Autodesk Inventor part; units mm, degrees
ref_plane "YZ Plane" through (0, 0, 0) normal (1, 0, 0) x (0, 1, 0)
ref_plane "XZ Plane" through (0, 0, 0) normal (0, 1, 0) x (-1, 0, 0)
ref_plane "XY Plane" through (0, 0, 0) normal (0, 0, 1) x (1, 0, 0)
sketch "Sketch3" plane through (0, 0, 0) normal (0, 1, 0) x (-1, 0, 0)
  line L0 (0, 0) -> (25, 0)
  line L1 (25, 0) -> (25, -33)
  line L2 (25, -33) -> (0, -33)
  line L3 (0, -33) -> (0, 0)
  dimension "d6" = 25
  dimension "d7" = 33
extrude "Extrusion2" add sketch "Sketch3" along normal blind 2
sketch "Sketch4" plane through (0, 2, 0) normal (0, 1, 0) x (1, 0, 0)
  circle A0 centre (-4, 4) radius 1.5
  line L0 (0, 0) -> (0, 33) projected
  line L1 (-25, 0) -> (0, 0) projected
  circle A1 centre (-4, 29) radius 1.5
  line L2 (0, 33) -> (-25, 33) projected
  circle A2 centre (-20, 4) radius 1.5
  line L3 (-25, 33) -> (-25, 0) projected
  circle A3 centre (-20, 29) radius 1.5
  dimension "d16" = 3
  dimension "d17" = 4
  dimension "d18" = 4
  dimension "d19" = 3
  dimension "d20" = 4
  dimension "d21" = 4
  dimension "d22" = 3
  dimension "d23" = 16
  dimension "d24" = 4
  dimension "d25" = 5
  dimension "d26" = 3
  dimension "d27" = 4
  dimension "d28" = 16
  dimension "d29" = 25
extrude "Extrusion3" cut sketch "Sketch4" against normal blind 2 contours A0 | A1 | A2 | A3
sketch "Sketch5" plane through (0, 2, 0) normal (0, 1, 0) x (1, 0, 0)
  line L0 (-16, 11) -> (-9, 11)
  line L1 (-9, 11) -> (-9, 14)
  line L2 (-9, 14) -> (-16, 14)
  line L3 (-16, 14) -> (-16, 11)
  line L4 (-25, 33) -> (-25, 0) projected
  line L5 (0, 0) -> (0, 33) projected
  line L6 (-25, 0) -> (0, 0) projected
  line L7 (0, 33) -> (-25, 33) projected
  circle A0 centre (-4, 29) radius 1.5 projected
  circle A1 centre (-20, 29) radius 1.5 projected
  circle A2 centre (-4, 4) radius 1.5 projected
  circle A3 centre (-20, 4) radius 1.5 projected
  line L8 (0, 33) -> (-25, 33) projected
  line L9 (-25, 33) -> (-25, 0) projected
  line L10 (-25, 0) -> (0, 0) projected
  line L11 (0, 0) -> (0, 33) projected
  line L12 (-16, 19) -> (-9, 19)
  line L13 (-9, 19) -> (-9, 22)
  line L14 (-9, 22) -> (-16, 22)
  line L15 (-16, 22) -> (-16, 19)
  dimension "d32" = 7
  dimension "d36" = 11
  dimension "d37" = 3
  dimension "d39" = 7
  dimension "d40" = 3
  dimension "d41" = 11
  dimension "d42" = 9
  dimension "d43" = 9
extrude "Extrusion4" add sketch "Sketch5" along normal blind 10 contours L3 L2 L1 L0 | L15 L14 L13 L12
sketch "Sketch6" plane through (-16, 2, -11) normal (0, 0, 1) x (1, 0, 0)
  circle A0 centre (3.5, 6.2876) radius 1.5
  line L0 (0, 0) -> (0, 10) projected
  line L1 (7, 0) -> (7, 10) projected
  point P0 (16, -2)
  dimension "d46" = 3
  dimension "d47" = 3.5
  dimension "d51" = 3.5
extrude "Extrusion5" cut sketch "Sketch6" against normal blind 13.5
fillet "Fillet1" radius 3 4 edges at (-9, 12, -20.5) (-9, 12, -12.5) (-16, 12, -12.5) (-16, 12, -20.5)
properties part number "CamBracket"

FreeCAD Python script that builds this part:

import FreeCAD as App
import Part
import Sketcher
from FreeCAD import Vector
Q = App.Units.Quantity


def edges_at(feature, points):
    """Names of the edges that pass closest to the given points."""
    edges = feature.Shape.Edges
    near = lambda p: min(range(len(edges)), key=lambda i: edges[i].distToShape(Part.Vertex(*p))[0])
    return sorted({f"Edge{near(p) + 1}" for p in points})


def add_polygon(sketch, points):
    """Adds a closed chain of lines whose ends are joined by coincident constraints."""
    first, n = sketch.GeometryCount, len(points)
    for a, b in zip(points, points[1:] + points[:1]):
        sketch.addGeometry(Part.LineSegment(App.Vector(*a, 0), App.Vector(*b, 0)), False)
    for i in range(n):
        sketch.addConstraint(Sketcher.Constraint("Coincident", first + i, 2, first + (i + 1) % n, 1))

doc = App.newDocument("Part")
body = doc.addObject("PartDesign::Body", "Body")

# Sketch on XZ plane
sketch1 = body.newObject("Sketcher::SketchObject", "Sketch")
sketch1.AttachmentSupport = (doc.getObject("XZ_Plane"), [""])
sketch1.MapMode = "FlatFace"
add_polygon(sketch1, [(-25, 0), (0, 0), (0, -33), (-25, -33)])  # lines 0-3
sketch1.addConstraint(Sketcher.Constraint("Horizontal", 0))
sketch1.addConstraint(Sketcher.Constraint("Vertical", 1))
sketch1.addConstraint(Sketcher.Constraint("Horizontal", 2))
sketch1.addConstraint(Sketcher.Constraint("Vertical", 3))
sketch1.addConstraint(Sketcher.Constraint("Coincident", 0, 2, -1, 1))
sketch1.addConstraint(Sketcher.Constraint("DistanceX", 0, 1, 0, 2, Q("25 mm")))
sketch1.addConstraint(Sketcher.Constraint("DistanceY", 1, 2, 1, 1, Q("33 mm")))
pad1 = body.newObject("PartDesign::Pad", "Pad")
pad1.Profile = sketch1
pad1.Length = 2
pad1.Reversed = True

# Sketch on XZ plane
sketch2 = body.newObject("Sketcher::SketchObject", "Sketch001")
sketch2.AttachmentSupport = (doc.getObject("XZ_Plane"), [""])
sketch2.MapMode = "FlatFace"
sketch2.AttachmentOffset = App.Placement(Vector(0, 0, -2), App.Rotation())
sketch2.addGeometry(Part.Circle(Vector(-4, -4, 0), Vector(0, 0, 1), 1.5), False)
sketch2.addGeometry(Part.Circle(Vector(-4, -29, 0), Vector(0, 0, 1), 1.5), False)
sketch2.addGeometry(Part.Circle(Vector(-20, -4, 0), Vector(0, 0, 1), 1.5), False)
sketch2.addGeometry(Part.Circle(Vector(-20, -29, 0), Vector(0, 0, 1), 1.5), False)
sketch2.addConstraint(Sketcher.Constraint("Equal", 0, 1))
sketch2.addConstraint(Sketcher.Constraint("Equal", 1, 2))
sketch2.addConstraint(Sketcher.Constraint("Equal", 2, 3))
sketch2.addConstraint(Sketcher.Constraint("Horizontal", 0, 3, 2, 3))
sketch2.addConstraint(Sketcher.Constraint("Horizontal", 1, 3, 3, 3))
sketch2.addConstraint(Sketcher.Constraint("Vertical", 0, 3, 1, 3))
sketch2.addConstraint(Sketcher.Constraint("Vertical", 2, 3, 3, 3))
sketch2.addConstraint(Sketcher.Constraint("Diameter", 0, Q("3 mm")))
sketch2.addConstraint(Sketcher.Constraint("DistanceX", 0, 3, -1, 1, Q("4 mm")))
sketch2.addConstraint(Sketcher.Constraint("DistanceY", 0, 3, -1, 1, Q("4 mm")))
sketch2.addConstraint(Sketcher.Constraint("DistanceY", 1, 3, 0, 3, Q("25 mm")))
sketch2.addConstraint(Sketcher.Constraint("DistanceX", 2, 3, 0, 3, Q("16 mm")))
pocket1 = body.newObject("PartDesign::Pocket", "Pocket")
pocket1.Profile = sketch2
pocket1.Length = 2
pocket1.Reversed = True

# Sketch on XZ plane
sketch3 = body.newObject("Sketcher::SketchObject", "Sketch002")
sketch3.AttachmentSupport = (doc.getObject("XZ_Plane"), [""])
sketch3.MapMode = "FlatFace"
sketch3.AttachmentOffset = App.Placement(Vector(0, 0, -2), App.Rotation())
add_polygon(sketch3, [(-16, -14), (-16, -11), (-9, -11), (-9, -14)])  # lines 0-3
add_polygon(sketch3, [(-16, -22), (-16, -19), (-9, -19), (-9, -22)])  # lines 4-7
sketch3.addConstraint(Sketcher.Constraint("Vertical", 0))
sketch3.addConstraint(Sketcher.Constraint("Horizontal", 1))
sketch3.addConstraint(Sketcher.Constraint("Vertical", 2))
sketch3.addConstraint(Sketcher.Constraint("Horizontal", 3))
sketch3.addConstraint(Sketcher.Constraint("Vertical", 4))
sketch3.addConstraint(Sketcher.Constraint("Horizontal", 5))
sketch3.addConstraint(Sketcher.Constraint("Vertical", 6))
sketch3.addConstraint(Sketcher.Constraint("Horizontal", 7))
sketch3.addConstraint(Sketcher.Constraint("Vertical", 3, 2, 4, 2))
sketch3.addConstraint(Sketcher.Constraint("Vertical", 2, 2, 5, 2))
sketch3.addConstraint(Sketcher.Constraint("Equal", 2, 4))
sketch3.addConstraint(Sketcher.Constraint("DistanceX", 1, 1, 1, 2, Q("7 mm")))
sketch3.addConstraint(Sketcher.Constraint("DistanceY", 0, 1, 0, 2, Q("3 mm")))
sketch3.addConstraint(Sketcher.Constraint("DistanceY", 0, 2, -1, 1, Q("11 mm")))
sketch3.addConstraint(Sketcher.Constraint("DistanceX", 1, 2, -1, 1, Q("9 mm")))
sketch3.addConstraint(Sketcher.Constraint("DistanceY", 6, 2, 1, 2, Q("11 mm")))
pad2 = body.newObject("PartDesign::Pad", "Pad001")
pad2.Profile = sketch3
pad2.Length = 10
pad2.Reversed = True

# Sketch on XY plane
sketch4 = body.newObject("Sketcher::SketchObject", "Sketch003")
sketch4.AttachmentSupport = (doc.getObject("XY_Plane"), [""])
sketch4.MapMode = "FlatFace"
sketch4.AttachmentOffset = App.Placement(Vector(0, 0, -11), App.Rotation())
sketch4.addGeometry(Part.Circle(Vector(-12.5, 8.2876, 0), Vector(0, 0, 1), 1.5), False)
sketch4.addConstraint(Sketcher.Constraint("Diameter", 0, Q("3 mm")))
sketch4.addConstraint(Sketcher.Constraint("DistanceX", 0, 3, -1, 1, Q("12.5 mm")))
sketch4.addConstraint(Sketcher.Constraint("DistanceY", -1, 1, 0, 3, Q("8.2876 mm")))
pocket2 = body.newObject("PartDesign::Pocket", "Pocket001")
pocket2.Profile = sketch4
pocket2.Length = 13.5
doc.recompute()

fillet = body.newObject("PartDesign::Fillet", "Fillet")
fillet.Base = (pocket2, edges_at(pocket2, [
    (-9, 12, -20.5),
    (-9, 12, -12.5),
    (-16, 12, -12.5),
    (-16, 12, -20.5),
]))
fillet.Radius = 3

doc.recompute()
